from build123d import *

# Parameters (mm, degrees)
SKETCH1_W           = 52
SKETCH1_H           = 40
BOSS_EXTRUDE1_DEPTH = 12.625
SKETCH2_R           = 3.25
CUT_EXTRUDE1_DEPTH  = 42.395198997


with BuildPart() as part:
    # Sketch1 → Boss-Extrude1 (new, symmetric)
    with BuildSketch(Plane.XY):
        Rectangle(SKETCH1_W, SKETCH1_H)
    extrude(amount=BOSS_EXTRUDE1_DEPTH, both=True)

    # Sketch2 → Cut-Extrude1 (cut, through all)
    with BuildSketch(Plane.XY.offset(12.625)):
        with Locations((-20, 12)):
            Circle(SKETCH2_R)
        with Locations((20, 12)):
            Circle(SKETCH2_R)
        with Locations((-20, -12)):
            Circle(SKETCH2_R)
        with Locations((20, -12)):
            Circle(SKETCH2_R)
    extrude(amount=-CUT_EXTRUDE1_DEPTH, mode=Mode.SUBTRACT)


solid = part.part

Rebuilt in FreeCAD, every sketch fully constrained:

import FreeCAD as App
import Part
import Sketcher

V = App.Vector

doc = App.newDocument("Part")
body = doc.addObject("PartDesign::Body", "Body")

# Sketch on XY plane
sketch1 = body.newObject("Sketcher::SketchObject", "Sketch")
sketch1.AttachmentSupport = (doc.getObject("XY_Plane"), [""])
sketch1.MapMode = "FlatFace"
sketch1.addGeometry([
    Part.LineSegment(V(-26, 20, 0), V(-26, -20, 0)),
    Part.LineSegment(V(-26, -20, 0), V(26, -20, 0)),
    Part.LineSegment(V(26, -20, 0), V(26, 20, 0)),
    Part.LineSegment(V(26, 20, 0), V(-26, 20, 0)),
], False)
sketch1.addConstraint([
    Sketcher.Constraint("Coincident", 0, 2, 1, 1),
    Sketcher.Constraint("Coincident", 1, 2, 2, 1),
    Sketcher.Constraint("Coincident", 2, 2, 3, 1),
    Sketcher.Constraint("Coincident", 3, 2, 0, 1),
    Sketcher.Constraint("Vertical", 0),
    Sketcher.Constraint("Horizontal", 1),
    Sketcher.Constraint("Vertical", 2),
    Sketcher.Constraint("Horizontal", 3),
    Sketcher.Constraint("Symmetric", 0, 2, 2, 2, -1, 1),
    Sketcher.Constraint("DistanceX", 1, 1, 1, 2, 52.0),
    Sketcher.Constraint("DistanceY", 0, 2, 0, 1, 40.0),
])
pad1 = body.newObject("PartDesign::Pad", "Pad")
pad1.Profile = sketch1
pad1.Length = 25.25
pad1.Midplane = True

# Sketch on XY plane
sketch2 = body.newObject("Sketcher::SketchObject", "Sketch001")
sketch2.AttachmentSupport = (doc.getObject("XY_Plane"), [""])
sketch2.MapMode = "FlatFace"
sketch2.AttachmentOffset = App.Placement(V(0, 0, 12.625), App.Rotation())
sketch2.addGeometry([
    Part.Circle(V(-20, 12, 0), V(0, 0, 1), 3.2),
    Part.Circle(V(20, 12, 0), V(0, 0, 1), 3.2),
    Part.Circle(V(-20, -12, 0), V(0, 0, 1), 3.2),
    Part.Circle(V(20, -12, 0), V(0, 0, 1), 3.2),
], False)
sketch2.addConstraint([
    Sketcher.Constraint("Equal", 0, 1),
    Sketcher.Constraint("Equal", 1, 2),
    Sketcher.Constraint("Equal", 2, 3),
    Sketcher.Constraint("Symmetric", 1, 3, 2, 3, -1, 1),
    Sketcher.Constraint("Symmetric", 0, 3, 3, 3, -1, 1),
    Sketcher.Constraint("Symmetric", 0, 3, 1, 3, -2),
    Sketcher.Constraint("Diameter", 0, 6.5),
    Sketcher.Constraint("DistanceX", 0, 3, -1, 1, 20.0),
    Sketcher.Constraint("DistanceY", -1, 1, 0, 3, 12.0),
])
pocket1 = body.newObject("PartDesign::Pocket", "Pocket")
pocket1.Profile = sketch2
pocket1.Type = "ThroughAll"

doc.recompute()
